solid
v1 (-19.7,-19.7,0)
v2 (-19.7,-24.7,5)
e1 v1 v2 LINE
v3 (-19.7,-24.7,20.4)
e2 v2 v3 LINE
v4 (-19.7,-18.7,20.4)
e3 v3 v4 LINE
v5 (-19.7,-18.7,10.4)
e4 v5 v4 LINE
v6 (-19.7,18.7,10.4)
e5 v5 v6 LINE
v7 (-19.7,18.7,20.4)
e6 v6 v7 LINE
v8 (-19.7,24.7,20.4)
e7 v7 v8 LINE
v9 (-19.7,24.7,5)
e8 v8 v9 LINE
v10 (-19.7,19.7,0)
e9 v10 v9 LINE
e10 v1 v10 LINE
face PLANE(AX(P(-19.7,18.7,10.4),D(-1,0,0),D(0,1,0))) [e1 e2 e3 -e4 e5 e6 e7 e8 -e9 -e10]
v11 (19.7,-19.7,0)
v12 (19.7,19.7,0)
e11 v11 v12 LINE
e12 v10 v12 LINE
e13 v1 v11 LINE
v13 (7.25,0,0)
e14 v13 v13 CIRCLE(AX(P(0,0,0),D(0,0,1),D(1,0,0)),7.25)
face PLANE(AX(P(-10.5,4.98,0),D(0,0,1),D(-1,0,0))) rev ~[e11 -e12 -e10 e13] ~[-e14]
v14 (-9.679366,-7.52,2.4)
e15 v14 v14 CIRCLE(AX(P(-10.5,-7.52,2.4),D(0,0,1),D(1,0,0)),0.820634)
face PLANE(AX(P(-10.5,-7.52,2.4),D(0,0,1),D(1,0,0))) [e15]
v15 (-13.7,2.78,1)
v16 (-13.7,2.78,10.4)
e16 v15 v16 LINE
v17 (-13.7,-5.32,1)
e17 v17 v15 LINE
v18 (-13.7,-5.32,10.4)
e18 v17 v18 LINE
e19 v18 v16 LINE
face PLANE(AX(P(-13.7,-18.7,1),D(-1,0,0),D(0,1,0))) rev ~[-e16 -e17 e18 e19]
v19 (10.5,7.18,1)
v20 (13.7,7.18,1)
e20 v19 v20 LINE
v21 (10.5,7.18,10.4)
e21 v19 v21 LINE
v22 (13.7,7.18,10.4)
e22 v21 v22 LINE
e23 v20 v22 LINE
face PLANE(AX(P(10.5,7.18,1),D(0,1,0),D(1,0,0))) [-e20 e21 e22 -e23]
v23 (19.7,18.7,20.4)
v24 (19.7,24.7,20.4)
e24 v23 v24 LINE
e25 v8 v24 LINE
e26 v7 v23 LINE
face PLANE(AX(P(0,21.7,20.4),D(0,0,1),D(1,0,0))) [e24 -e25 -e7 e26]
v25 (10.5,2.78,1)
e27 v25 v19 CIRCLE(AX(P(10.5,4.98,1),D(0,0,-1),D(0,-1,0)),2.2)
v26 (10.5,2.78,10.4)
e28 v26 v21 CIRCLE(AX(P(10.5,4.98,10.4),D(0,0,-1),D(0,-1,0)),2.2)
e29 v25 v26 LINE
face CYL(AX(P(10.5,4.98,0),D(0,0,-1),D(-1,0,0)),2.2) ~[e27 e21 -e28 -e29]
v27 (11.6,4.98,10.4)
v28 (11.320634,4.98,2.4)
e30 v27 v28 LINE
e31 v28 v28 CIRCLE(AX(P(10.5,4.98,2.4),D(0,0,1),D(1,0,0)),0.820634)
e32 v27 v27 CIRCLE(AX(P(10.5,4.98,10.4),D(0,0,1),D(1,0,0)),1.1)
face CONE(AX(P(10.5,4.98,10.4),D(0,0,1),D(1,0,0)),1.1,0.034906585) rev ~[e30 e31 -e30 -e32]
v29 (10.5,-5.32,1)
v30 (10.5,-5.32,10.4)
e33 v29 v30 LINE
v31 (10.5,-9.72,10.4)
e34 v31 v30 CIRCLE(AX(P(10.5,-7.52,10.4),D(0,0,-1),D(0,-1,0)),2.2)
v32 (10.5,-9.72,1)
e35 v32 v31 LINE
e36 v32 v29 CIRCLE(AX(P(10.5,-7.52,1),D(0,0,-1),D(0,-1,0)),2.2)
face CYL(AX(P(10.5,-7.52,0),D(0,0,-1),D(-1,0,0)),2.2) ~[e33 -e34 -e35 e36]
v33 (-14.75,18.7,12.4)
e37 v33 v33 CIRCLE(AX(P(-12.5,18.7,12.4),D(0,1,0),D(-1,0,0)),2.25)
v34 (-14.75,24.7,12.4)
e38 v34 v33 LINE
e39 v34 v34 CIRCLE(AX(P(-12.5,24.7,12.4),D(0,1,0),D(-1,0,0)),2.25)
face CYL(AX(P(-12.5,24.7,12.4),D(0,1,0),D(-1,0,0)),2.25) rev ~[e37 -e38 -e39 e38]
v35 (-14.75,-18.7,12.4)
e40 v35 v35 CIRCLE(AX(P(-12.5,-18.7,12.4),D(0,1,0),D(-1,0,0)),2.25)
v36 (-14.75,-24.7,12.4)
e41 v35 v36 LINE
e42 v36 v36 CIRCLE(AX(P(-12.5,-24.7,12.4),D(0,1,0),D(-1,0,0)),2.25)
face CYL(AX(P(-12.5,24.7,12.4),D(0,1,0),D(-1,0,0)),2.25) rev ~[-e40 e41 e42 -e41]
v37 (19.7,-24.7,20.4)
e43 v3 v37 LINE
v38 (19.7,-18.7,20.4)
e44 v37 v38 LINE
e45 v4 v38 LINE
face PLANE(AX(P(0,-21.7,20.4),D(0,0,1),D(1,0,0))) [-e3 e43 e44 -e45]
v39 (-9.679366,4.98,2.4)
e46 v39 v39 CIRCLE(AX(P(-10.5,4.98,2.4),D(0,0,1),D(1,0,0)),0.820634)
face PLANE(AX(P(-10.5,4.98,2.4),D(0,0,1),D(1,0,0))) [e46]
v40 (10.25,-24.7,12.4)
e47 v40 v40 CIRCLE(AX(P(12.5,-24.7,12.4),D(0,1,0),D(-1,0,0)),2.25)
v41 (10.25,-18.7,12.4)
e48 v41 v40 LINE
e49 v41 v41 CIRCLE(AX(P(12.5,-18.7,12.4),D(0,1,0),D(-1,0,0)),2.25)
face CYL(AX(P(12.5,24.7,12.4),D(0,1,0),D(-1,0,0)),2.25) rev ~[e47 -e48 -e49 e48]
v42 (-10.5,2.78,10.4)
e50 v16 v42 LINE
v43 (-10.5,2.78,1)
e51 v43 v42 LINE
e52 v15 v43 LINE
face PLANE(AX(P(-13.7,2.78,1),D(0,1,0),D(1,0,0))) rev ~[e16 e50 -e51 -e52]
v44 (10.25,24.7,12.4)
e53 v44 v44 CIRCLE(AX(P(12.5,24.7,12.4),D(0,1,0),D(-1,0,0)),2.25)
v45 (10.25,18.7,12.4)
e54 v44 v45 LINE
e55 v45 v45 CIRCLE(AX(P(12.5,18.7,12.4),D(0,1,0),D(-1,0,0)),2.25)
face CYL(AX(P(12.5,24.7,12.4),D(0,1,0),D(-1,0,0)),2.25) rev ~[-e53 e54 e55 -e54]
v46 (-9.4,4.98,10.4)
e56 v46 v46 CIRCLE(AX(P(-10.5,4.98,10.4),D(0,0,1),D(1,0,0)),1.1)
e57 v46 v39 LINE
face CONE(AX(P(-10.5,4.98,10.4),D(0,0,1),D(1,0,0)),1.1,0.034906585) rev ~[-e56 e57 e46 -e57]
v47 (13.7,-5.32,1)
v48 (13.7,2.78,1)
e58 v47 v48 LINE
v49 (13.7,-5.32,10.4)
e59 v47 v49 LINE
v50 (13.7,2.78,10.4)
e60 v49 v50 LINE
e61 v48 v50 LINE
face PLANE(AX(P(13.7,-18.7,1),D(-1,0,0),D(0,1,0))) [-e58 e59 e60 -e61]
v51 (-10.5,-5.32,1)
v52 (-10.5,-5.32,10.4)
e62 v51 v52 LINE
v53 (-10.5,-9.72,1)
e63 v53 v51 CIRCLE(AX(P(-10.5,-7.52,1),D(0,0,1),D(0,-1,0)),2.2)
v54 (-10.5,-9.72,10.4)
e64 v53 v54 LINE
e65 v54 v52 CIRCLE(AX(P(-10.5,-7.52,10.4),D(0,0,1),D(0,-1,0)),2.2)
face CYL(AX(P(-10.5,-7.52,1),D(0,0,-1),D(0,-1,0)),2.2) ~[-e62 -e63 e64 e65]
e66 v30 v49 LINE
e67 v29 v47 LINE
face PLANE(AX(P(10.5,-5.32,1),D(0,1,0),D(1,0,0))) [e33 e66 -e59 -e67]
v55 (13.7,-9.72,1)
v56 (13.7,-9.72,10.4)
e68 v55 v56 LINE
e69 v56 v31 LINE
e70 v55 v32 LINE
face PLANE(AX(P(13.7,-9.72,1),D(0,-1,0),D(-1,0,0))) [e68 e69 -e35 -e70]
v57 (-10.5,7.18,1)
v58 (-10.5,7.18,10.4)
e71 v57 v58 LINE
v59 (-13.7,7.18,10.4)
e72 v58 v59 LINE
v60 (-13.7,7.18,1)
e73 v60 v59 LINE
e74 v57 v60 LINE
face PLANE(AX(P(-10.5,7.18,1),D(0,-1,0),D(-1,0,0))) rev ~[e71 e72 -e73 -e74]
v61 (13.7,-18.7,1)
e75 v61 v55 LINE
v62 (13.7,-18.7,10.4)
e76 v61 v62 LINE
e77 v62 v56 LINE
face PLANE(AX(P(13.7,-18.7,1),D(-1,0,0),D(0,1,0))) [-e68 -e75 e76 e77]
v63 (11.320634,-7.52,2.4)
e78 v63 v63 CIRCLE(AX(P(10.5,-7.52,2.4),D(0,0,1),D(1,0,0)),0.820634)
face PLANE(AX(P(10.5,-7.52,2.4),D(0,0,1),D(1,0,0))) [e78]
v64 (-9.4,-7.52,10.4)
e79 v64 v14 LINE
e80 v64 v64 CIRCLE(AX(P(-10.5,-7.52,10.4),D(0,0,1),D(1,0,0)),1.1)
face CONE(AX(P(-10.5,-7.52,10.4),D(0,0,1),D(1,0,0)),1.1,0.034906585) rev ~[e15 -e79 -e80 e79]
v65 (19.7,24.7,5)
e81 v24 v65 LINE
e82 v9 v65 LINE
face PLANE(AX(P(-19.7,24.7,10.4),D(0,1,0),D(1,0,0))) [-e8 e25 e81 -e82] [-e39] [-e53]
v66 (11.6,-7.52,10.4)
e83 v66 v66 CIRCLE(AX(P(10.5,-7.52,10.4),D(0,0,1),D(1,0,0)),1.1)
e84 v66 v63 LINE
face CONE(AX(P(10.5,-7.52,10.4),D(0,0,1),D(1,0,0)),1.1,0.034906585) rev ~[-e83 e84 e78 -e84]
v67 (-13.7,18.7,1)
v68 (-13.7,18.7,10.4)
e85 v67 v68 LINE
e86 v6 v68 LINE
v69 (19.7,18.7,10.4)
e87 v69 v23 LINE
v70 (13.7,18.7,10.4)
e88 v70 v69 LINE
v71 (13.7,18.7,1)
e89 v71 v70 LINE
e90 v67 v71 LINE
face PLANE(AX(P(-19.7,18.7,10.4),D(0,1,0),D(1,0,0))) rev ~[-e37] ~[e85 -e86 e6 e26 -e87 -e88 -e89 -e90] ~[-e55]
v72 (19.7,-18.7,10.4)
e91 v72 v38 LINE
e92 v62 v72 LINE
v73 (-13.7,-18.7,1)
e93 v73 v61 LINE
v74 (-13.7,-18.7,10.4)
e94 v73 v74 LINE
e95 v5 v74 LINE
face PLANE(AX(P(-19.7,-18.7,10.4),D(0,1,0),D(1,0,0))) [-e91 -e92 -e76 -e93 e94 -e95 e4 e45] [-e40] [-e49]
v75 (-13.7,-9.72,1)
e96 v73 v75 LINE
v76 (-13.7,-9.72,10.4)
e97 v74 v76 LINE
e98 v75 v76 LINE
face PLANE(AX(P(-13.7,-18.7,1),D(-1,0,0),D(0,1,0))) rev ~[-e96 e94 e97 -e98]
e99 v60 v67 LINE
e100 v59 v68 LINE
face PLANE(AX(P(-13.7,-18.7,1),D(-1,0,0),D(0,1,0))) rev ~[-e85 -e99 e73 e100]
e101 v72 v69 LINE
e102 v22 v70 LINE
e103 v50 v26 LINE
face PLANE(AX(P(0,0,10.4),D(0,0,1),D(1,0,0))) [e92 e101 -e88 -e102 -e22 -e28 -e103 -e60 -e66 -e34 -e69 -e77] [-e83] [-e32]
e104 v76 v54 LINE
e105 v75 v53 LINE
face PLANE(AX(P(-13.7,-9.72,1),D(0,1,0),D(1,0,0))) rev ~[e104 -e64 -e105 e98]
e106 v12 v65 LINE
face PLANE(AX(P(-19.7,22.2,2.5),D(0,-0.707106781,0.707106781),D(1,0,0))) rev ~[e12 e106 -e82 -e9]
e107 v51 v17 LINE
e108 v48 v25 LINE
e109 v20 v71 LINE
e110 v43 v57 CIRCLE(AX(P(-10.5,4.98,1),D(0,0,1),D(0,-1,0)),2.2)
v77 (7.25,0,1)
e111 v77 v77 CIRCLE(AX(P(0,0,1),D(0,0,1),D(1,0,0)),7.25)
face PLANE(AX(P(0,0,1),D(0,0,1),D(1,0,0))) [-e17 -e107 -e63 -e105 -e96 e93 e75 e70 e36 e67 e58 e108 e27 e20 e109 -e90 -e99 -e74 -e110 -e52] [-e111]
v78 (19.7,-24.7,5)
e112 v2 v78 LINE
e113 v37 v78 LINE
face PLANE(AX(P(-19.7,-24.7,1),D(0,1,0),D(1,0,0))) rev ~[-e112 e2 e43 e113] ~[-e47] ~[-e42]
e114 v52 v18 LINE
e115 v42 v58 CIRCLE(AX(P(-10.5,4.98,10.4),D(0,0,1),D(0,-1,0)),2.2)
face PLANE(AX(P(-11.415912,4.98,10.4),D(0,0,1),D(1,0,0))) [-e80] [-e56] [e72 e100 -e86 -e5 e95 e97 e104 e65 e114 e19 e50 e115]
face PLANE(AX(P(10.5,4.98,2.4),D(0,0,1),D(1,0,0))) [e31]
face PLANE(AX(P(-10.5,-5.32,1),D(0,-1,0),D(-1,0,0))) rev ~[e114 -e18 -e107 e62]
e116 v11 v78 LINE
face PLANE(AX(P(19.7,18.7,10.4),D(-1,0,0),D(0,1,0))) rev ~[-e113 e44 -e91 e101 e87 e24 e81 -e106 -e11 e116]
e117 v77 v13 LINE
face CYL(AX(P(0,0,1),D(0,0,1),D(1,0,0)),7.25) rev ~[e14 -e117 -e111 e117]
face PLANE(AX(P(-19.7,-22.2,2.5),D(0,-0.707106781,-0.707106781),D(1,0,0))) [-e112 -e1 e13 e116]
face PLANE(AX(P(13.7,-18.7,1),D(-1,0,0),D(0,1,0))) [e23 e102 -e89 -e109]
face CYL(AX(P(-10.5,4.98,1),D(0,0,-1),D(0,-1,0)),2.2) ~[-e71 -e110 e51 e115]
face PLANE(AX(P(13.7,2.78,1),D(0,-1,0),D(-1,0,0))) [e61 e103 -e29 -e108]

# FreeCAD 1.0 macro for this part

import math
import FreeCAD as App
import Part
import Sketcher
from FreeCAD import Vector
Q = App.Units.Quantity


def edges_at(feature, points):
    """Names of the edges that pass closest to the given points."""
    edges = feature.Shape.Edges
    near = lambda p: min(range(len(edges)), key=lambda i: edges[i].distToShape(Part.Vertex(*p))[0])
    return sorted({f"Edge{near(p) + 1}" for p in points})


def faces_at(feature, points):
    """Names of the faces that lie closest to the given points."""
    faces = feature.Shape.Faces
    near = lambda p: min(range(len(faces)), key=lambda i: faces[i].distToShape(Part.Vertex(*p))[0])
    return sorted({f"Face{near(p) + 1}" for p in points})

doc = App.newDocument("Part")
params = doc.addObject("Spreadsheet::Sheet", "Params")
for row, (alias, value) in enumerate([
    ("sketch1_width", "39.4 mm"),
    ("sketch1_height", "49.4 mm"),
    ("pad1_length", "1 mm"),
    ("sketch2_diameter", "14.5 mm"),
    ("sketch3_diameter", "2 mm"),
    ("sketch3_diameter2", "4.4 mm"),
    ("pad2_length", "10.4 mm"),
    ("sketch4_width", "39.4 mm"),
    ("sketch4_width2", "27.4 mm"),
    ("sketch4_height", "49.4 mm"),
    ("sketch4_height2", "37.4 mm"),
    ("pad3_length", "9.4 mm"),
    ("sketch5_height", "6 mm"),
    ("sketch5_width", "39.4 mm"),
    ("pad4_length", "10 mm"),
    ("sketch6_diameter", "3.3 mm"),
    ("sketch7_diameter", "4.5 mm"),
    ("sketch8_radius", "2.2 mm"),
    ("sketch8_width", "3.2 mm"),
    ("pad5_length", "9.4 mm"),
    ("sketch9_diameter", "2.2 mm"),
    ("pad6_length", "8 mm"),
    ("draft_angle", "2 deg"),
    ("sketch10_diameter", "2.2 mm"),
    ("pad7_length", "8 mm"),
    ("draft2_angle", "2 deg"),
    ("sketch11_diameter", "2.2 mm"),
    ("pad8_length", "8 mm"),
    ("draft3_angle", "2 deg"),
    ("sketch12_diameter", "2.2 mm"),
    ("pad9_length", "8 mm"),
    ("draft4_angle", "2 deg"),
    ("chamfer_size", "5 mm"),
], start=1):
    params.set(f"A{row}", alias)
    params.set(f"B{row}", "=" + value)
    params.setAlias(f"B{row}", alias)

body = doc.addObject("PartDesign::Body", "Body")

sketch1 = body.newObject("Sketcher::SketchObject", "Sketch")
sketch1.AttachmentSupport = (doc.getObject("XY_Plane"), [""])
sketch1.MapMode = "FlatFace"
sketch1.addGeometry([
    Part.LineSegment(Vector(-19.7, 24.7, 0), Vector(-19.7, -24.7, 0)),
    Part.LineSegment(Vector(-19.7, -24.7, 0), Vector(19.7, -24.7, 0)),
    Part.LineSegment(Vector(19.7, -24.7, 0), Vector(19.7, 24.7, 0)),
    Part.LineSegment(Vector(19.7, 24.7, 0), Vector(-19.7, 24.7, 0)),
], False)
sketch1.addConstraint([
    Sketcher.Constraint("Coincident", 0, 2, 1, 1),
    Sketcher.Constraint("Coincident", 1, 2, 2, 1),
    Sketcher.Constraint("Coincident", 2, 2, 3, 1),
    Sketcher.Constraint("Coincident", 3, 2, 0, 1),
    Sketcher.Constraint("Vertical", 0),
    Sketcher.Constraint("Horizontal", 1),
    Sketcher.Constraint("Vertical", 2),
    Sketcher.Constraint("Horizontal", 3),
    Sketcher.Constraint("Symmetric", 0, 2, 2, 2, -1, 1),
    Sketcher.Constraint("DistanceX", 1, 1, 1, 2, Q("39.4 mm")),
    Sketcher.Constraint("DistanceY", 0, 2, 0, 1, Q("49.4 mm")),
])
sketch1.setExpression("Constraints[9]", "Params.sketch1_width")
sketch1.setExpression("Constraints[10]", "Params.sketch1_height")
pad1 = body.newObject("PartDesign::Pad", "Pad")
pad1.Profile = sketch1
pad1.setExpression("Length", "Params.pad1_length")

sketch2 = body.newObject("Sketcher::SketchObject", "Sketch001")
sketch2.AttachmentSupport = (doc.getObject("XY_Plane"), [""])
sketch2.MapMode = "FlatFace"
sketch2.AttachmentOffset = App.Placement(Vector(0, 0, 1), App.Rotation())
sketch2.addGeometry(Part.Circle(Vector(0, 0, 0), Vector(0, 0, 1), 7.25), False)
sketch2.addConstraint([
    Sketcher.Constraint("Coincident", 0, 3, -1, 1),
    Sketcher.Constraint("Diameter", 0, Q("14.5 mm")),
])
sketch2.setExpression("Constraints[1]", "Params.sketch2_diameter")
pocket1 = body.newObject("PartDesign::Pocket", "Pocket")
pocket1.Profile = sketch2
pocket1.Type = "ThroughAll"

sketch3 = body.newObject("Sketcher::SketchObject", "Sketch002")
sketch3.AttachmentSupport = (doc.getObject("XY_Plane"), [""])
sketch3.MapMode = "FlatFace"
sketch3.addGeometry([
    Part.Circle(Vector(-10.5, 4.98, 0), Vector(0, 0, 1), 2.2),
    Part.Circle(Vector(-10.5, 4.98, 0), Vector(0, 0, 1), 1),
    Part.Circle(Vector(-10.5, -7.52, 0), Vector(0, 0, 1), 2.2),
    Part.Circle(Vector(-10.5, -7.52, 0), Vector(0, 0, 1), 1),
    Part.Circle(Vector(10.5, -7.52, 0), Vector(0, 0, 1), 2.2),
    Part.Circle(Vector(10.5, -7.52, 0), Vector(0, 0, 1), 1),
    Part.Circle(Vector(10.5, 4.98, 0), Vector(0, 0, 1), 2.2),
    Part.Circle(Vector(10.5, 4.98, 0), Vector(0, 0, 1), 1),
], False)
sketch3.addConstraint([
    Sketcher.Constraint("Coincident", 1, 3, 0, 3),
    Sketcher.Constraint("Coincident", 3, 3, 2, 3),
    Sketcher.Constraint("Coincident", 5, 3, 4, 3),
    Sketcher.Constraint("Coincident", 7, 3, 6, 3),
    Sketcher.Constraint("Equal", 0, 2),
    Sketcher.Constraint("Equal", 1, 3),
    Sketcher.Constraint("Equal", 2, 4),
    Sketcher.Constraint("Equal", 3, 5),
    Sketcher.Constraint("Equal", 4, 6),
    Sketcher.Constraint("Equal", 5, 7),
    Sketcher.Constraint("Symmetric", 2, 3, 4, 3, -2),
    Sketcher.Constraint("Symmetric", 0, 3, 6, 3, -2),
    Sketcher.Constraint("Vertical", 1, 3, 2, 3),
    Sketcher.Constraint("Diameter", 1, Q("2 mm")),
    Sketcher.Constraint("Diameter", 0, Q("4.4 mm")),
    Sketcher.Constraint("DistanceX", 2, 3, 4, 3, Q("21 mm")),
    Sketcher.Constraint("DistanceY", 2, 3, 0, 3, Q("12.5 mm")),
    Sketcher.Constraint("DistanceY", -1, 1, 0, 3, Q("4.98 mm")),
])
sketch3.setExpression("Constraints[13]", "Params.sketch3_diameter")
sketch3.setExpression("Constraints[14]", "Params.sketch3_diameter2")
pad2 = body.newObject("PartDesign::Pad", "Pad001")
pad2.Profile = sketch3
pad2.setExpression("Length", "Params.pad2_length")

sketch4 = body.newObject("Sketcher::SketchObject", "Sketch003")
sketch4.AttachmentSupport = (doc.getObject("XY_Plane"), [""])
sketch4.MapMode = "FlatFace"
sketch4.AttachmentOffset = App.Placement(Vector(0, 0, 1), App.Rotation())
sketch4.addGeometry([
    Part.LineSegment(Vector(-19.7, 24.7, 0), Vector(-19.7, -24.7, 0)),
    Part.LineSegment(Vector(-19.7, -24.7, 0), Vector(19.7, -24.7, 0)),
    Part.LineSegment(Vector(19.7, -24.7, 0), Vector(19.7, 24.7, 0)),
    Part.LineSegment(Vector(19.7, 24.7, 0), Vector(-19.7, 24.7, 0)),
    Part.LineSegment(Vector(13.7, -18.7, 0), Vector(-13.7, -18.7, 0)),
    Part.LineSegment(Vector(-13.7, -18.7, 0), Vector(-13.7, 18.7, 0)),
    Part.LineSegment(Vector(-13.7, 18.7, 0), Vector(13.7, 18.7, 0)),
    Part.LineSegment(Vector(13.7, 18.7, 0), Vector(13.7, -18.7, 0)),
], False)
sketch4.addConstraint([
    Sketcher.Constraint("Coincident", 0, 2, 1, 1),
    Sketcher.Constraint("Coincident", 1, 2, 2, 1),
    Sketcher.Constraint("Coincident", 2, 2, 3, 1),
    Sketcher.Constraint("Coincident", 3, 2, 0, 1),
    Sketcher.Constraint("Coincident", 4, 2, 5, 1),
    Sketcher.Constraint("Coincident", 5, 2, 6, 1),
    Sketcher.Constraint("Coincident", 6, 2, 7, 1),
    Sketcher.Constraint("Coincident", 7, 2, 4, 1),
    Sketcher.Constraint("Vertical", 0),
    Sketcher.Constraint("Horizontal", 1),
    Sketcher.Constraint("Vertical", 2),
    Sketcher.Constraint("Horizontal", 3),
    Sketcher.Constraint("Horizontal", 4),
    Sketcher.Constraint("Vertical", 5),
    Sketcher.Constraint("Horizontal", 6),
    Sketcher.Constraint("Vertical", 7),
    Sketcher.Constraint("Symmetric", 0, 2, 2, 2, -1, 1),
    Sketcher.Constraint("Symmetric", 4, 2, 6, 2, -1, 1),
    Sketcher.Constraint("DistanceX", 1, 1, 1, 2, Q("39.4 mm")),
    Sketcher.Constraint("DistanceX", 4, 2, 4, 1, Q("27.4 mm")),
    Sketcher.Constraint("DistanceY", 0, 2, 0, 1, Q("49.4 mm")),
    Sketcher.Constraint("DistanceY", 5, 1, 5, 2, Q("37.4 mm")),
])
sketch4.setExpression("Constraints[18]", "Params.sketch4_width")
sketch4.setExpression("Constraints[19]", "Params.sketch4_width2")
sketch4.setExpression("Constraints[20]", "Params.sketch4_height")
sketch4.setExpression("Constraints[21]", "Params.sketch4_height2")
pad3 = body.newObject("PartDesign::Pad", "Pad002")
pad3.Profile = sketch4
pad3.setExpression("Length", "Params.pad3_length")

sketch5 = body.newObject("Sketcher::SketchObject", "Sketch004")
sketch5.AttachmentSupport = (doc.getObject("XY_Plane"), [""])
sketch5.MapMode = "FlatFace"
sketch5.AttachmentOffset = App.Placement(Vector(0, 0, 10.4), App.Rotation())
sketch5.addGeometry([
    Part.LineSegment(Vector(-19.7, 24.7, 0), Vector(-19.7, 18.7, 0)),
    Part.LineSegment(Vector(-19.7, 18.7, 0), Vector(19.7, 18.7, 0)),
    Part.LineSegment(Vector(19.7, 18.7, 0), Vector(19.7, 24.7, 0)),
    Part.LineSegment(Vector(19.7, 24.7, 0), Vector(-19.7, 24.7, 0)),
    Part.LineSegment(Vector(-19.7, -18.7, 0), Vector(-19.7, -24.7, 0)),
    Part.LineSegment(Vector(-19.7, -24.7, 0), Vector(19.7, -24.7, 0)),
    Part.LineSegment(Vector(19.7, -24.7, 0), Vector(19.7, -18.7, 0)),
    Part.LineSegment(Vector(19.7, -18.7, 0), Vector(-19.7, -18.7, 0)),
], False)
sketch5.addConstraint([
    Sketcher.Constraint("Coincident", 0, 2, 1, 1),
    Sketcher.Constraint("Coincident", 1, 2, 2, 1),
    Sketcher.Constraint("Coincident", 2, 2, 3, 1),
    Sketcher.Constraint("Coincident", 3, 2, 0, 1),
    Sketcher.Constraint("Coincident", 4, 2, 5, 1),
    Sketcher.Constraint("Coincident", 5, 2, 6, 1),
    Sketcher.Constraint("Coincident", 6, 2, 7, 1),
    Sketcher.Constraint("Coincident", 7, 2, 4, 1),
    Sketcher.Constraint("Vertical", 0),
    Sketcher.Constraint("Horizontal", 1),
    Sketcher.Constraint("Vertical", 2),
    Sketcher.Constraint("Horizontal", 3),
    Sketcher.Constraint("Vertical", 4),
    Sketcher.Constraint("Horizontal", 5),
    Sketcher.Constraint("Vertical", 6),
    Sketcher.Constraint("Horizontal", 7),
    Sketcher.Constraint("Symmetric", 2, 2, 4, 2, -1, 1),
    Sketcher.Constraint("Symmetric", 0, 2, 6, 2, -1, 1),
    Sketcher.Constraint("Vertical", 3, 2, 4, 2),
    Sketcher.Constraint("DistanceY", 0, 2, 0, 1, Q("6 mm")),
    Sketcher.Constraint("DistanceX", 1, 1, 1, 2, Q("39.4 mm")),
    Sketcher.Constraint("DistanceY", -1, 1, 0, 2, Q("18.7 mm")),
])
sketch5.setExpression("Constraints[19]", "Params.sketch5_height")
sketch5.setExpression("Constraints[20]", "Params.sketch5_width")
pad4 = body.newObject("PartDesign::Pad", "Pad003")
pad4.Profile = sketch5
pad4.setExpression("Length", "Params.pad4_length")

sketch6 = body.newObject("Sketcher::SketchObject", "Sketch005")
sketch6.AttachmentSupport = (doc.getObject("XZ_Plane"), [""])
sketch6.MapMode = "FlatFace"
sketch6.AttachmentOffset = App.Placement(Vector(0, 0, -24.7), App.Rotation())
sketch6.addGeometry([
    Part.Circle(Vector(-12.5, 12.4, 0), Vector(0, 0, 1), 1.65),
    Part.Circle(Vector(12.5, 12.4, 0), Vector(0, 0, 1), 1.65),
], False)
sketch6.addConstraint([
    Sketcher.Constraint("Equal", 0, 1),
    Sketcher.Constraint("Symmetric", 0, 3, 1, 3, -2),
    Sketcher.Constraint("Diameter", 0, Q("3.3 mm")),
    Sketcher.Constraint("DistanceX", 0, 3, 1, 3, Q("25 mm")),
    Sketcher.Constraint("DistanceY", -1, 1, 0, 3, Q("12.4 mm")),
])
sketch6.setExpression("Constraints[2]", "Params.sketch6_diameter")
pocket2 = body.newObject("PartDesign::Pocket", "Pocket001")
pocket2.Profile = sketch6
pocket2.Type = "ThroughAll"
pocket2.Reversed = True

sketch7 = body.newObject("Sketcher::SketchObject", "Sketch006")
sketch7.AttachmentSupport = (doc.getObject("XZ_Plane"), [""])
sketch7.MapMode = "FlatFace"
sketch7.AttachmentOffset = App.Placement(Vector(0, 0, -24.7), App.Rotation())
sketch7.addGeometry([
    Part.Circle(Vector(12.5, 12.4, 0), Vector(0, 0, 1), 2.25),
    Part.Circle(Vector(-12.5, 12.4, 0), Vector(0, 0, 1), 2.25),
], False)
sketch7.addConstraint([
    Sketcher.Constraint("Equal", 0, 1),
    Sketcher.Constraint("Symmetric", 0, 3, 1, 3, -2),
    Sketcher.Constraint("Diameter", 0, Q("4.5 mm")),
    Sketcher.Constraint("DistanceX", 1, 3, 0, 3, Q("25 mm")),
    Sketcher.Constraint("DistanceY", -1, 1, 0, 3, Q("12.4 mm")),
])
sketch7.setExpression("Constraints[2]", "Params.sketch7_diameter")
pocket3 = body.newObject("PartDesign::Pocket", "Pocket002")
pocket3.Profile = sketch7
pocket3.Type = "ThroughAll"
pocket3.Reversed = True

sketch8 = body.newObject("Sketcher::SketchObject", "Sketch007")
sketch8.AttachmentSupport = (doc.getObject("XY_Plane"), [""])
sketch8.MapMode = "FlatFace"
sketch8.AttachmentOffset = App.Placement(Vector(0, 0, 1), App.Rotation())
sketch8.addGeometry([
    Part.LineSegment(Vector(-10.5, 7.18, 0), Vector(-13.7, 7.18, 0)),
    Part.LineSegment(Vector(-13.7, 7.18, 0), Vector(-13.7, 2.78, 0)),
    Part.LineSegment(Vector(-13.7, 2.78, 0), Vector(-10.5, 2.78, 0)),
    Part.ArcOfCircle(Part.Circle(Vector(-10.5, 4.98, 0), Vector(0, 0, 1), 2.2), math.radians(-90), math.radians(90)),
    Part.LineSegment(Vector(-10.5, -5.32, 0), Vector(-13.7, -5.32, 0)),
    Part.LineSegment(Vector(-13.7, -5.32, 0), Vector(-13.7, -9.72, 0)),
    Part.LineSegment(Vector(-13.7, -9.72, 0), Vector(-10.5, -9.72, 0)),
    Part.ArcOfCircle(Part.Circle(Vector(-10.5, -7.52, 0), Vector(0, 0, 1), 2.2), math.radians(-90), math.radians(90)),
    Part.LineSegment(Vector(13.7, 7.18, 0), Vector(10.5, 7.18, 0)),
    Part.ArcOfCircle(Part.Circle(Vector(10.5, 4.98, 0), Vector(0, 0, 1), 2.2), math.radians(90), math.radians(270)),
    Part.LineSegment(Vector(10.5, 2.78, 0), Vector(13.7, 2.78, 0)),
    Part.LineSegment(Vector(13.7, 2.78, 0), Vector(13.7, 7.18, 0)),
    Part.LineSegment(Vector(13.7, -5.32, 0), Vector(10.5, -5.32, 0)),
    Part.ArcOfCircle(Part.Circle(Vector(10.5, -7.52, 0), Vector(0, 0, 1), 2.2), math.radians(90), math.radians(270)),
    Part.LineSegment(Vector(10.5, -9.72, 0), Vector(13.7, -9.72, 0)),
    Part.LineSegment(Vector(13.7, -9.72, 0), Vector(13.7, -5.32, 0)),
], False)
sketch8.addConstraint([
    Sketcher.Constraint("Coincident", 0, 2, 1, 1),
    Sketcher.Constraint("Coincident", 1, 2, 2, 1),
    Sketcher.Constraint("Tangent", 2, 2, 3, 1),
    Sketcher.Constraint("Tangent", 3, 2, 0, 1),
    Sketcher.Constraint("Coincident", 4, 2, 5, 1),
    Sketcher.Constraint("Coincident", 5, 2, 6, 1),
    Sketcher.Constraint("Tangent", 6, 2, 7, 1),
    Sketcher.Constraint("Tangent", 7, 2, 4, 1),
    Sketcher.Constraint("Tangent", 8, 2, 9, 1),
    Sketcher.Constraint("Tangent", 9, 2, 10, 1),
    Sketcher.Constraint("Coincident", 10, 2, 11, 1),
    Sketcher.Constraint("Coincident", 11, 2, 8, 1),
    Sketcher.Constraint("Tangent", 12, 2, 13, 1),
    Sketcher.Constraint("Tangent", 13, 2, 14, 1),
    Sketcher.Constraint("Coincident", 14, 2, 15, 1),
    Sketcher.Constraint("Coincident", 15, 2, 12, 1),
    Sketcher.Constraint("Horizontal", 0),
    Sketcher.Constraint("Vertical", 1),
    Sketcher.Constraint("Horizontal", 2),
    Sketcher.Constraint("Horizontal", 4),
    Sketcher.Constraint("Vertical", 5),
    Sketcher.Constraint("Horizontal", 6),
    Sketcher.Constraint("Horizontal", 8),
    Sketcher.Constraint("Horizontal", 10),
    Sketcher.Constraint("Vertical", 11),
    Sketcher.Constraint("Horizontal", 12),
    Sketcher.Constraint("Horizontal", 14),
    Sketcher.Constraint("Vertical", 15),
    Sketcher.Constraint("Equal", 3, 7),
    Sketcher.Constraint("Equal", 7, 9),
    Sketcher.Constraint("Equal", 9, 13),
    Sketcher.Constraint("Symmetric", 3, 3, 9, 3, -2),
    Sketcher.Constraint("Symmetric", 7, 3, 13, 3, -2),
    Sketcher.Constraint("Vertical", 3, 3, 7, 3),
    Sketcher.Constraint("Vertical", 1, 2, 4, 2),
    Sketcher.Constraint("Vertical", 11, 2, 14, 2),
    Sketcher.Constraint("Equal", 6, 8),
    Sketcher.Constraint("Radius", 3, Q("2.2 mm")),
    Sketcher.Constraint("DistanceX", 0, 2, 0, 1, Q("3.2 mm")),
    Sketcher.Constraint("DistanceX", 3, 3, 9, 3, Q("21 mm")),
    Sketcher.Constraint("DistanceY", 7, 3, 3, 3, Q("12.5 mm")),
    Sketcher.Constraint("DistanceY", -1, 1, 3, 3, Q("4.98 mm")),
])
sketch8.setExpression("Constraints[37]", "Params.sketch8_radius")
sketch8.setExpression("Constraints[38]", "Params.sketch8_width")
pad5 = body.newObject("PartDesign::Pad", "Pad004")
pad5.Profile = sketch8
pad5.setExpression("Length", "Params.pad5_length")
body2 = doc.addObject("PartDesign::Body", "Body001")

sketch9 = body2.newObject("Sketcher::SketchObject", "Sketch008")
sketch9.AttachmentSupport = (doc.getObject("XY_Plane001"), [""])
sketch9.MapMode = "FlatFace"
sketch9.AttachmentOffset = App.Placement(Vector(0, 0, 10.4), App.Rotation())
sketch9.addGeometry(Part.Circle(Vector(-10.5, 4.98, 0), Vector(0, 0, 1), 1.1), False)
sketch9.addConstraint([
    Sketcher.Constraint("Diameter", 0, Q("2.2 mm")),
    Sketcher.Constraint("DistanceX", 0, 3, -1, 1, Q("10.5 mm")),
    Sketcher.Constraint("DistanceY", -1, 1, 0, 3, Q("4.98 mm")),
])
sketch9.setExpression("Constraints[0]", "Params.sketch9_diameter")
pad6 = body2.newObject("PartDesign::Pad", "Pad005")
pad6.Profile = sketch9
pad6.setExpression("Length", "Params.pad6_length")
pad6.Reversed = True
doc.recompute()

datumplane = body2.newObject("PartDesign::Plane", "DatumPlane")
datumplane.AttachmentSupport = (doc.getObject("XY_Plane001"), [""])
datumplane.MapMode = "FlatFace"
datumplane.AttachmentOffset = App.Placement(Vector(0, 0, 10.4), App.Rotation())
draft = body2.newObject("PartDesign::Draft", "Draft")
draft.Base = (pad6, faces_at(pad6, [(-11.6, 4.98, 6.4)]))
draft.NeutralPlane = (datumplane, [""])
draft.setExpression("Angle", "Params.draft_angle")
draft.Reversed = True
doc.recompute()

boolean = body.newObject("PartDesign::Boolean", "Boolean")
boolean.Type = "Cut"
boolean.addObjects([body2])
body3 = doc.addObject("PartDesign::Body", "Body002")

sketch10 = body3.newObject("Sketcher::SketchObject", "Sketch009")
sketch10.AttachmentSupport = (doc.getObject("XY_Plane002"), [""])
sketch10.MapMode = "FlatFace"
sketch10.AttachmentOffset = App.Placement(Vector(0, 0, 10.4), App.Rotation())
sketch10.addGeometry(Part.Circle(Vector(10.5, 4.98, 0), Vector(0, 0, 1), 1.1), False)
sketch10.addConstraint([
    Sketcher.Constraint("Diameter", 0, Q("2.2 mm")),
    Sketcher.Constraint("DistanceX", -1, 1, 0, 3, Q("10.5 mm")),
    Sketcher.Constraint("DistanceY", -1, 1, 0, 3, Q("4.98 mm")),
])
sketch10.setExpression("Constraints[0]", "Params.sketch10_diameter")
pad7 = body3.newObject("PartDesign::Pad", "Pad006")
pad7.Profile = sketch10
pad7.setExpression("Length", "Params.pad7_length")
pad7.Reversed = True
doc.recompute()

datumplane2 = body3.newObject("PartDesign::Plane", "DatumPlane001")
datumplane2.AttachmentSupport = (doc.getObject("XY_Plane002"), [""])
datumplane2.MapMode = "FlatFace"
datumplane2.AttachmentOffset = App.Placement(Vector(0, 0, 10.4), App.Rotation())
draft2 = body3.newObject("PartDesign::Draft", "Draft001")
draft2.Base = (pad7, faces_at(pad7, [(9.4, 4.98, 6.4)]))
draft2.NeutralPlane = (datumplane2, [""])
draft2.setExpression("Angle", "Params.draft2_angle")
draft2.Reversed = True
doc.recompute()

boolean2 = body.newObject("PartDesign::Boolean", "Boolean001")
boolean2.Type = "Cut"
boolean2.addObjects([body3])
body4 = doc.addObject("PartDesign::Body", "Body003")

sketch11 = body4.newObject("Sketcher::SketchObject", "Sketch010")
sketch11.AttachmentSupport = (doc.getObject("XY_Plane003"), [""])
sketch11.MapMode = "FlatFace"
sketch11.AttachmentOffset = App.Placement(Vector(0, 0, 10.4), App.Rotation())
sketch11.addGeometry(Part.Circle(Vector(10.5, -7.52, 0), Vector(0, 0, 1), 1.1), False)
sketch11.addConstraint([
    Sketcher.Constraint("Diameter", 0, Q("2.2 mm")),
    Sketcher.Constraint("DistanceX", -1, 1, 0, 3, Q("10.5 mm")),
    Sketcher.Constraint("DistanceY", 0, 3, -1, 1, Q("7.52 mm")),
])
sketch11.setExpression("Constraints[0]", "Params.sketch11_diameter")
pad8 = body4.newObject("PartDesign::Pad", "Pad007")
pad8.Profile = sketch11
pad8.setExpression("Length", "Params.pad8_length")
pad8.Reversed = True
doc.recompute()

datumplane3 = body4.newObject("PartDesign::Plane", "DatumPlane002")
datumplane3.AttachmentSupport = (doc.getObject("XY_Plane003"), [""])
datumplane3.MapMode = "FlatFace"
datumplane3.AttachmentOffset = App.Placement(Vector(0, 0, 10.4), App.Rotation())
draft3 = body4.newObject("PartDesign::Draft", "Draft002")
draft3.Base = (pad8, faces_at(pad8, [(9.4, -7.52, 6.4)]))
draft3.NeutralPlane = (datumplane3, [""])
draft3.setExpression("Angle", "Params.draft3_angle")
draft3.Reversed = True
doc.recompute()

boolean3 = body.newObject("PartDesign::Boolean", "Boolean002")
boolean3.Type = "Cut"
boolean3.addObjects([body4])
body5 = doc.addObject("PartDesign::Body", "Body004")

sketch12 = body5.newObject("Sketcher::SketchObject", "Sketch011")
sketch12.AttachmentSupport = (doc.getObject("XY_Plane004"), [""])
sketch12.MapMode = "FlatFace"
sketch12.AttachmentOffset = App.Placement(Vector(0, 0, 10.4), App.Rotation())
sketch12.addGeometry(Part.Circle(Vector(-10.5, -7.52, 0), Vector(0, 0, 1), 1.1), False)
sketch12.addConstraint([
    Sketcher.Constraint("Diameter", 0, Q("2.2 mm")),
    Sketcher.Constraint("DistanceX", 0, 3, -1, 1, Q("10.5 mm")),
    Sketcher.Constraint("DistanceY", 0, 3, -1, 1, Q("7.52 mm")),
])
sketch12.setExpression("Constraints[0]", "Params.sketch12_diameter")
pad9 = body5.newObject("PartDesign::Pad", "Pad008")
pad9.Profile = sketch12
pad9.setExpression("Length", "Params.pad9_length")
pad9.Reversed = True
doc.recompute()

datumplane4 = body5.newObject("PartDesign::Plane", "DatumPlane003")
datumplane4.AttachmentSupport = (doc.getObject("XY_Plane004"), [""])
datumplane4.MapMode = "FlatFace"
datumplane4.AttachmentOffset = App.Placement(Vector(0, 0, 10.4), App.Rotation())
draft4 = body5.newObject("PartDesign::Draft", "Draft003")
draft4.Base = (pad9, faces_at(pad9, [(-11.6, -7.52, 6.4)]))
draft4.NeutralPlane = (datumplane4, [""])
draft4.setExpression("Angle", "Params.draft4_angle")
draft4.Reversed = True
doc.recompute()

boolean4 = body.newObject("PartDesign::Boolean", "Boolean003")
boolean4.Type = "Cut"
boolean4.addObjects([body5])
doc.recompute()

chamfer = body.newObject("PartDesign::Chamfer", "Chamfer")
chamfer.Base = (boolean4, edges_at(boolean4, [(0, 24.7, 0), (0, -24.7, 0)]))
chamfer.setExpression("Size", "Params.chamfer_size")

doc.recompute()
